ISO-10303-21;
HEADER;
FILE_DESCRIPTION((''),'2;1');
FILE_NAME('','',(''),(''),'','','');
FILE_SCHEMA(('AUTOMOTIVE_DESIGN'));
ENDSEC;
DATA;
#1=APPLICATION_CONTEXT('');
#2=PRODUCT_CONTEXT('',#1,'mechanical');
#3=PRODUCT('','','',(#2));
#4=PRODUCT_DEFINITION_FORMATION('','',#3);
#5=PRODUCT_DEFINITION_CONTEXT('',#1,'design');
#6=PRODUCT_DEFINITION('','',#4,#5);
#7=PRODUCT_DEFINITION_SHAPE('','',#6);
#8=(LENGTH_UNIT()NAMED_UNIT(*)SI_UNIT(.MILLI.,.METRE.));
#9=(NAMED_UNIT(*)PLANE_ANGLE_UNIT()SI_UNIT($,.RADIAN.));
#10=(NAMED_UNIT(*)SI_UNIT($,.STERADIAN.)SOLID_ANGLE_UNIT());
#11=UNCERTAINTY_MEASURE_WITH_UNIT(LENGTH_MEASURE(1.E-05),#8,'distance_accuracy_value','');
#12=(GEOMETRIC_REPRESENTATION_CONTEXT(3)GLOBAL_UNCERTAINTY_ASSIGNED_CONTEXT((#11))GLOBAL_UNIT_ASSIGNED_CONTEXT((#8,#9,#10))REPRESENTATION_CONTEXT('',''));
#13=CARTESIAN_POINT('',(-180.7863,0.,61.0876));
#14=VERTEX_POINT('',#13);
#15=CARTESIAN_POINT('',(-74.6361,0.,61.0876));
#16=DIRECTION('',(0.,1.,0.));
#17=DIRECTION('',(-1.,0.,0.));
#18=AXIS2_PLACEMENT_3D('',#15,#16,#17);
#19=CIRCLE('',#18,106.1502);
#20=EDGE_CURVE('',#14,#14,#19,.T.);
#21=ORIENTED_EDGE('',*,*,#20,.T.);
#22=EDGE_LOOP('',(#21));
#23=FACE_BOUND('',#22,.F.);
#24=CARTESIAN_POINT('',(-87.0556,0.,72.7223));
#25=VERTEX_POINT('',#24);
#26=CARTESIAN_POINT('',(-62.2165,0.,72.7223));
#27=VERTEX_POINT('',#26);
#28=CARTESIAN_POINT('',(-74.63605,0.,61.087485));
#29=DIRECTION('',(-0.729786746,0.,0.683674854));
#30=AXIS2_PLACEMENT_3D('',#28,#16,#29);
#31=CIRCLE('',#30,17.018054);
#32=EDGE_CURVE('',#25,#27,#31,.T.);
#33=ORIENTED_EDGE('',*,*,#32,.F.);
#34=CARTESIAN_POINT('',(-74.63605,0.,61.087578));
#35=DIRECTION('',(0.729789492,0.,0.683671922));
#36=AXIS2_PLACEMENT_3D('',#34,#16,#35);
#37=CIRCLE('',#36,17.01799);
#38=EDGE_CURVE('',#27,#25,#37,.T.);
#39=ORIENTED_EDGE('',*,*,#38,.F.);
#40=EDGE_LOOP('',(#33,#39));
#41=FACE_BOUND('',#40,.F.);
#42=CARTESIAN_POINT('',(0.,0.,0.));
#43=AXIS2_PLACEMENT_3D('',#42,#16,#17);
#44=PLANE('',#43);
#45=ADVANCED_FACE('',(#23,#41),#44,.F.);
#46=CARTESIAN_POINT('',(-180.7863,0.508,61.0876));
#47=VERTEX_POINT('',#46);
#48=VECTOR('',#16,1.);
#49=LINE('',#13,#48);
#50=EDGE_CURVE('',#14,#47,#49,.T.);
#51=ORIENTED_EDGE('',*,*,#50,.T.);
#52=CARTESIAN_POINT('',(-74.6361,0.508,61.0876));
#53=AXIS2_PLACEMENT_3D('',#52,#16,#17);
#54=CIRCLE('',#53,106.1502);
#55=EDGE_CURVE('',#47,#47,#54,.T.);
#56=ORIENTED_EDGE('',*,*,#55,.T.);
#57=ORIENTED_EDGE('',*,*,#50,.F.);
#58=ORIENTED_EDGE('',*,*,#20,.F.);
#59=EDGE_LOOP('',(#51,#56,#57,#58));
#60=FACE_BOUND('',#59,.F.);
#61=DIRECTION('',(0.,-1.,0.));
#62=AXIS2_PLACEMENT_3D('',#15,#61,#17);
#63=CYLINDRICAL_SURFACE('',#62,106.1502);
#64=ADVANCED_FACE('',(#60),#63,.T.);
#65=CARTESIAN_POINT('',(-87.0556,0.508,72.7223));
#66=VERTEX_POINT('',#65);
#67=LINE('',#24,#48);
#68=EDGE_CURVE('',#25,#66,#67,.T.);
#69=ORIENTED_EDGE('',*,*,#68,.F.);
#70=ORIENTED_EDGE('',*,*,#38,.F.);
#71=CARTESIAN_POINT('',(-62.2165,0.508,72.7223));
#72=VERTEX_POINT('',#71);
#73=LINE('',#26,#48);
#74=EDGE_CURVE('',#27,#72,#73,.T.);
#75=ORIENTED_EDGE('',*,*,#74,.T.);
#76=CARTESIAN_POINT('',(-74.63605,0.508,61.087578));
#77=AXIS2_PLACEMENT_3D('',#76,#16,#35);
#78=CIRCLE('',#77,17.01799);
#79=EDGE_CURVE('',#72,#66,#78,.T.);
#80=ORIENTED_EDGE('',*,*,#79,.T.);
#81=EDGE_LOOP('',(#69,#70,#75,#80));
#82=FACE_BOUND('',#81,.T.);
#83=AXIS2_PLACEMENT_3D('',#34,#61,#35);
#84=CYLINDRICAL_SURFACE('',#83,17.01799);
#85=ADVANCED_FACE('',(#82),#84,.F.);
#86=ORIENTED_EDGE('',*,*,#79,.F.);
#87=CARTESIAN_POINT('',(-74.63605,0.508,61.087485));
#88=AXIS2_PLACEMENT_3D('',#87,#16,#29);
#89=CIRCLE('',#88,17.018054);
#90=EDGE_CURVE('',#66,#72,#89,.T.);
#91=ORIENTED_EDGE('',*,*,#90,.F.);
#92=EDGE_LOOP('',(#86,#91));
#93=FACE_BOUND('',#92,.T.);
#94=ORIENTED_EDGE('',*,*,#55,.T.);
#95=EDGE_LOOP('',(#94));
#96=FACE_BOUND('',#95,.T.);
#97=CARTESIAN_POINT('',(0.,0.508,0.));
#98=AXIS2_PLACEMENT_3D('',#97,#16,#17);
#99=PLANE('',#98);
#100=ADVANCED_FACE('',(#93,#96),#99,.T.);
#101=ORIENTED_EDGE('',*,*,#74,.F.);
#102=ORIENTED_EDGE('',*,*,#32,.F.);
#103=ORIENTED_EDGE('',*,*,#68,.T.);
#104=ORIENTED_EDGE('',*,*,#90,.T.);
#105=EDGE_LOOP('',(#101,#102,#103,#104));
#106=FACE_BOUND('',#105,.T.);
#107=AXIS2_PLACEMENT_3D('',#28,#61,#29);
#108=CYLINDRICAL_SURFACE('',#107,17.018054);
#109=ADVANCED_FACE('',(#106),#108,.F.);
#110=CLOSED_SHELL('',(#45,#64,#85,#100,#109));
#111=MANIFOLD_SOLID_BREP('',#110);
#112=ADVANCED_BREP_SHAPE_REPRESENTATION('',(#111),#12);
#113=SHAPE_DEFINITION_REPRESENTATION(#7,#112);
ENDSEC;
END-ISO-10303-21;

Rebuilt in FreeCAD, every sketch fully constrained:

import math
import FreeCAD as App
import Part
import Sketcher

V = App.Vector
Q = App.Units.Quantity

doc = App.newDocument("Part")
body = doc.addObject("PartDesign::Body", "Body")

sketch1 = doc.addObject("Sketcher::SketchObject", "Sketch")
body.addObject(sketch1)
sketch1.AttachmentSupport = (doc.XZ_Plane, [""])
sketch1.MapMode = "FlatFace"
sketch1.addGeometry([
    Part.Circle(V(-75, 61, 0), V(0, 0, 1), 106),
    Part.ArcOfCircle(Part.Circle(V(-75, 61, 0), V(0, 0, 1), 17), math.radians(137), math.radians(403)),
    Part.ArcOfCircle(Part.Circle(V(-75, 61, 0), V(0, 0, 1), 17), math.radians(43), math.radians(137)),
], False)
sketch1.addConstraint([
    Sketcher.Constraint("Tangent", 1, 1, 2, 2),
    Sketcher.Constraint("Coincident", 2, 1, 1, 2),
    Sketcher.Constraint("Coincident", 1, 3, 0, 3),
    Sketcher.Constraint("Horizontal", 1, 1, 2, 1),
    Sketcher.Constraint("Radius", 1, Q("0.67 in")),
    Sketcher.Constraint("Diameter", 0, 212.3004),
    Sketcher.Constraint("DistanceX", 0, 3, -1, 1, 74.636),
    Sketcher.Constraint("DistanceY", -1, 1, 0, 3, 61.0876),
    Sketcher.Constraint("DistanceX", 1, 1, -1, 1, Q("3.4273898 in")),
])
pad1 = doc.addObject("PartDesign::Pad", "Pad")
body.addObject(pad1)
pad1.Profile = sketch1
pad1.Length = Q("0.02 in")
pad1.Reversed = True

doc.recompute()
